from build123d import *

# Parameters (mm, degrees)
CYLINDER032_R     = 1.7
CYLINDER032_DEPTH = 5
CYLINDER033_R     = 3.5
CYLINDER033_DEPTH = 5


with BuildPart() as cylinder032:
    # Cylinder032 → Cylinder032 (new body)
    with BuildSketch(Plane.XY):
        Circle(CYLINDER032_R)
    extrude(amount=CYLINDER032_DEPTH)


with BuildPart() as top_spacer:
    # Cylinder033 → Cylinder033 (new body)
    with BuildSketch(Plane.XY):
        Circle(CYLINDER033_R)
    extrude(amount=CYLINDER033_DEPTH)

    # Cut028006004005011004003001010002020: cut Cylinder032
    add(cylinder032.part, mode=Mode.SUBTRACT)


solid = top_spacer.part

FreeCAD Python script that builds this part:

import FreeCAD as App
import Part
import Sketcher
from FreeCAD import Vector

doc = App.newDocument("Part")
body = doc.addObject("PartDesign::Body", "Body")

sketch1 = body.newObject("Sketcher::SketchObject", "Sketch")
sketch1.AttachmentSupport = (doc.getObject("XY_Plane"), [""])
sketch1.MapMode = "FlatFace"
sketch1.addGeometry(Part.Circle(Vector(0, 0, 0), Vector(0, 0, 1), 1.7), False)
sketch1.addConstraint([
    Sketcher.Constraint("Coincident", 0, 3, -1, 1),
    Sketcher.Constraint("Diameter", 0, 3.4),
])
pad1 = body.newObject("PartDesign::Pad", "Pad")
pad1.Profile = sketch1
pad1.Length = 5
body2 = doc.addObject("PartDesign::Body", "Body001")

sketch2 = body2.newObject("Sketcher::SketchObject", "Sketch001")
sketch2.AttachmentSupport = (doc.getObject("XY_Plane001"), [""])
sketch2.MapMode = "FlatFace"
sketch2.addGeometry(Part.Circle(Vector(0, 0, 0), Vector(0, 0, 1), 3.5), False)
sketch2.addConstraint([
    Sketcher.Constraint("Coincident", 0, 3, -1, 1),
    Sketcher.Constraint("Diameter", 0, 7.0),
])
pad2 = body2.newObject("PartDesign::Pad", "Pad001")
pad2.Profile = sketch2
pad2.Length = 5
doc.recompute()

boolean = body2.newObject("PartDesign::Boolean", "Boolean")
boolean.Type = "Cut"
boolean.addObjects([body])

doc.recompute()
